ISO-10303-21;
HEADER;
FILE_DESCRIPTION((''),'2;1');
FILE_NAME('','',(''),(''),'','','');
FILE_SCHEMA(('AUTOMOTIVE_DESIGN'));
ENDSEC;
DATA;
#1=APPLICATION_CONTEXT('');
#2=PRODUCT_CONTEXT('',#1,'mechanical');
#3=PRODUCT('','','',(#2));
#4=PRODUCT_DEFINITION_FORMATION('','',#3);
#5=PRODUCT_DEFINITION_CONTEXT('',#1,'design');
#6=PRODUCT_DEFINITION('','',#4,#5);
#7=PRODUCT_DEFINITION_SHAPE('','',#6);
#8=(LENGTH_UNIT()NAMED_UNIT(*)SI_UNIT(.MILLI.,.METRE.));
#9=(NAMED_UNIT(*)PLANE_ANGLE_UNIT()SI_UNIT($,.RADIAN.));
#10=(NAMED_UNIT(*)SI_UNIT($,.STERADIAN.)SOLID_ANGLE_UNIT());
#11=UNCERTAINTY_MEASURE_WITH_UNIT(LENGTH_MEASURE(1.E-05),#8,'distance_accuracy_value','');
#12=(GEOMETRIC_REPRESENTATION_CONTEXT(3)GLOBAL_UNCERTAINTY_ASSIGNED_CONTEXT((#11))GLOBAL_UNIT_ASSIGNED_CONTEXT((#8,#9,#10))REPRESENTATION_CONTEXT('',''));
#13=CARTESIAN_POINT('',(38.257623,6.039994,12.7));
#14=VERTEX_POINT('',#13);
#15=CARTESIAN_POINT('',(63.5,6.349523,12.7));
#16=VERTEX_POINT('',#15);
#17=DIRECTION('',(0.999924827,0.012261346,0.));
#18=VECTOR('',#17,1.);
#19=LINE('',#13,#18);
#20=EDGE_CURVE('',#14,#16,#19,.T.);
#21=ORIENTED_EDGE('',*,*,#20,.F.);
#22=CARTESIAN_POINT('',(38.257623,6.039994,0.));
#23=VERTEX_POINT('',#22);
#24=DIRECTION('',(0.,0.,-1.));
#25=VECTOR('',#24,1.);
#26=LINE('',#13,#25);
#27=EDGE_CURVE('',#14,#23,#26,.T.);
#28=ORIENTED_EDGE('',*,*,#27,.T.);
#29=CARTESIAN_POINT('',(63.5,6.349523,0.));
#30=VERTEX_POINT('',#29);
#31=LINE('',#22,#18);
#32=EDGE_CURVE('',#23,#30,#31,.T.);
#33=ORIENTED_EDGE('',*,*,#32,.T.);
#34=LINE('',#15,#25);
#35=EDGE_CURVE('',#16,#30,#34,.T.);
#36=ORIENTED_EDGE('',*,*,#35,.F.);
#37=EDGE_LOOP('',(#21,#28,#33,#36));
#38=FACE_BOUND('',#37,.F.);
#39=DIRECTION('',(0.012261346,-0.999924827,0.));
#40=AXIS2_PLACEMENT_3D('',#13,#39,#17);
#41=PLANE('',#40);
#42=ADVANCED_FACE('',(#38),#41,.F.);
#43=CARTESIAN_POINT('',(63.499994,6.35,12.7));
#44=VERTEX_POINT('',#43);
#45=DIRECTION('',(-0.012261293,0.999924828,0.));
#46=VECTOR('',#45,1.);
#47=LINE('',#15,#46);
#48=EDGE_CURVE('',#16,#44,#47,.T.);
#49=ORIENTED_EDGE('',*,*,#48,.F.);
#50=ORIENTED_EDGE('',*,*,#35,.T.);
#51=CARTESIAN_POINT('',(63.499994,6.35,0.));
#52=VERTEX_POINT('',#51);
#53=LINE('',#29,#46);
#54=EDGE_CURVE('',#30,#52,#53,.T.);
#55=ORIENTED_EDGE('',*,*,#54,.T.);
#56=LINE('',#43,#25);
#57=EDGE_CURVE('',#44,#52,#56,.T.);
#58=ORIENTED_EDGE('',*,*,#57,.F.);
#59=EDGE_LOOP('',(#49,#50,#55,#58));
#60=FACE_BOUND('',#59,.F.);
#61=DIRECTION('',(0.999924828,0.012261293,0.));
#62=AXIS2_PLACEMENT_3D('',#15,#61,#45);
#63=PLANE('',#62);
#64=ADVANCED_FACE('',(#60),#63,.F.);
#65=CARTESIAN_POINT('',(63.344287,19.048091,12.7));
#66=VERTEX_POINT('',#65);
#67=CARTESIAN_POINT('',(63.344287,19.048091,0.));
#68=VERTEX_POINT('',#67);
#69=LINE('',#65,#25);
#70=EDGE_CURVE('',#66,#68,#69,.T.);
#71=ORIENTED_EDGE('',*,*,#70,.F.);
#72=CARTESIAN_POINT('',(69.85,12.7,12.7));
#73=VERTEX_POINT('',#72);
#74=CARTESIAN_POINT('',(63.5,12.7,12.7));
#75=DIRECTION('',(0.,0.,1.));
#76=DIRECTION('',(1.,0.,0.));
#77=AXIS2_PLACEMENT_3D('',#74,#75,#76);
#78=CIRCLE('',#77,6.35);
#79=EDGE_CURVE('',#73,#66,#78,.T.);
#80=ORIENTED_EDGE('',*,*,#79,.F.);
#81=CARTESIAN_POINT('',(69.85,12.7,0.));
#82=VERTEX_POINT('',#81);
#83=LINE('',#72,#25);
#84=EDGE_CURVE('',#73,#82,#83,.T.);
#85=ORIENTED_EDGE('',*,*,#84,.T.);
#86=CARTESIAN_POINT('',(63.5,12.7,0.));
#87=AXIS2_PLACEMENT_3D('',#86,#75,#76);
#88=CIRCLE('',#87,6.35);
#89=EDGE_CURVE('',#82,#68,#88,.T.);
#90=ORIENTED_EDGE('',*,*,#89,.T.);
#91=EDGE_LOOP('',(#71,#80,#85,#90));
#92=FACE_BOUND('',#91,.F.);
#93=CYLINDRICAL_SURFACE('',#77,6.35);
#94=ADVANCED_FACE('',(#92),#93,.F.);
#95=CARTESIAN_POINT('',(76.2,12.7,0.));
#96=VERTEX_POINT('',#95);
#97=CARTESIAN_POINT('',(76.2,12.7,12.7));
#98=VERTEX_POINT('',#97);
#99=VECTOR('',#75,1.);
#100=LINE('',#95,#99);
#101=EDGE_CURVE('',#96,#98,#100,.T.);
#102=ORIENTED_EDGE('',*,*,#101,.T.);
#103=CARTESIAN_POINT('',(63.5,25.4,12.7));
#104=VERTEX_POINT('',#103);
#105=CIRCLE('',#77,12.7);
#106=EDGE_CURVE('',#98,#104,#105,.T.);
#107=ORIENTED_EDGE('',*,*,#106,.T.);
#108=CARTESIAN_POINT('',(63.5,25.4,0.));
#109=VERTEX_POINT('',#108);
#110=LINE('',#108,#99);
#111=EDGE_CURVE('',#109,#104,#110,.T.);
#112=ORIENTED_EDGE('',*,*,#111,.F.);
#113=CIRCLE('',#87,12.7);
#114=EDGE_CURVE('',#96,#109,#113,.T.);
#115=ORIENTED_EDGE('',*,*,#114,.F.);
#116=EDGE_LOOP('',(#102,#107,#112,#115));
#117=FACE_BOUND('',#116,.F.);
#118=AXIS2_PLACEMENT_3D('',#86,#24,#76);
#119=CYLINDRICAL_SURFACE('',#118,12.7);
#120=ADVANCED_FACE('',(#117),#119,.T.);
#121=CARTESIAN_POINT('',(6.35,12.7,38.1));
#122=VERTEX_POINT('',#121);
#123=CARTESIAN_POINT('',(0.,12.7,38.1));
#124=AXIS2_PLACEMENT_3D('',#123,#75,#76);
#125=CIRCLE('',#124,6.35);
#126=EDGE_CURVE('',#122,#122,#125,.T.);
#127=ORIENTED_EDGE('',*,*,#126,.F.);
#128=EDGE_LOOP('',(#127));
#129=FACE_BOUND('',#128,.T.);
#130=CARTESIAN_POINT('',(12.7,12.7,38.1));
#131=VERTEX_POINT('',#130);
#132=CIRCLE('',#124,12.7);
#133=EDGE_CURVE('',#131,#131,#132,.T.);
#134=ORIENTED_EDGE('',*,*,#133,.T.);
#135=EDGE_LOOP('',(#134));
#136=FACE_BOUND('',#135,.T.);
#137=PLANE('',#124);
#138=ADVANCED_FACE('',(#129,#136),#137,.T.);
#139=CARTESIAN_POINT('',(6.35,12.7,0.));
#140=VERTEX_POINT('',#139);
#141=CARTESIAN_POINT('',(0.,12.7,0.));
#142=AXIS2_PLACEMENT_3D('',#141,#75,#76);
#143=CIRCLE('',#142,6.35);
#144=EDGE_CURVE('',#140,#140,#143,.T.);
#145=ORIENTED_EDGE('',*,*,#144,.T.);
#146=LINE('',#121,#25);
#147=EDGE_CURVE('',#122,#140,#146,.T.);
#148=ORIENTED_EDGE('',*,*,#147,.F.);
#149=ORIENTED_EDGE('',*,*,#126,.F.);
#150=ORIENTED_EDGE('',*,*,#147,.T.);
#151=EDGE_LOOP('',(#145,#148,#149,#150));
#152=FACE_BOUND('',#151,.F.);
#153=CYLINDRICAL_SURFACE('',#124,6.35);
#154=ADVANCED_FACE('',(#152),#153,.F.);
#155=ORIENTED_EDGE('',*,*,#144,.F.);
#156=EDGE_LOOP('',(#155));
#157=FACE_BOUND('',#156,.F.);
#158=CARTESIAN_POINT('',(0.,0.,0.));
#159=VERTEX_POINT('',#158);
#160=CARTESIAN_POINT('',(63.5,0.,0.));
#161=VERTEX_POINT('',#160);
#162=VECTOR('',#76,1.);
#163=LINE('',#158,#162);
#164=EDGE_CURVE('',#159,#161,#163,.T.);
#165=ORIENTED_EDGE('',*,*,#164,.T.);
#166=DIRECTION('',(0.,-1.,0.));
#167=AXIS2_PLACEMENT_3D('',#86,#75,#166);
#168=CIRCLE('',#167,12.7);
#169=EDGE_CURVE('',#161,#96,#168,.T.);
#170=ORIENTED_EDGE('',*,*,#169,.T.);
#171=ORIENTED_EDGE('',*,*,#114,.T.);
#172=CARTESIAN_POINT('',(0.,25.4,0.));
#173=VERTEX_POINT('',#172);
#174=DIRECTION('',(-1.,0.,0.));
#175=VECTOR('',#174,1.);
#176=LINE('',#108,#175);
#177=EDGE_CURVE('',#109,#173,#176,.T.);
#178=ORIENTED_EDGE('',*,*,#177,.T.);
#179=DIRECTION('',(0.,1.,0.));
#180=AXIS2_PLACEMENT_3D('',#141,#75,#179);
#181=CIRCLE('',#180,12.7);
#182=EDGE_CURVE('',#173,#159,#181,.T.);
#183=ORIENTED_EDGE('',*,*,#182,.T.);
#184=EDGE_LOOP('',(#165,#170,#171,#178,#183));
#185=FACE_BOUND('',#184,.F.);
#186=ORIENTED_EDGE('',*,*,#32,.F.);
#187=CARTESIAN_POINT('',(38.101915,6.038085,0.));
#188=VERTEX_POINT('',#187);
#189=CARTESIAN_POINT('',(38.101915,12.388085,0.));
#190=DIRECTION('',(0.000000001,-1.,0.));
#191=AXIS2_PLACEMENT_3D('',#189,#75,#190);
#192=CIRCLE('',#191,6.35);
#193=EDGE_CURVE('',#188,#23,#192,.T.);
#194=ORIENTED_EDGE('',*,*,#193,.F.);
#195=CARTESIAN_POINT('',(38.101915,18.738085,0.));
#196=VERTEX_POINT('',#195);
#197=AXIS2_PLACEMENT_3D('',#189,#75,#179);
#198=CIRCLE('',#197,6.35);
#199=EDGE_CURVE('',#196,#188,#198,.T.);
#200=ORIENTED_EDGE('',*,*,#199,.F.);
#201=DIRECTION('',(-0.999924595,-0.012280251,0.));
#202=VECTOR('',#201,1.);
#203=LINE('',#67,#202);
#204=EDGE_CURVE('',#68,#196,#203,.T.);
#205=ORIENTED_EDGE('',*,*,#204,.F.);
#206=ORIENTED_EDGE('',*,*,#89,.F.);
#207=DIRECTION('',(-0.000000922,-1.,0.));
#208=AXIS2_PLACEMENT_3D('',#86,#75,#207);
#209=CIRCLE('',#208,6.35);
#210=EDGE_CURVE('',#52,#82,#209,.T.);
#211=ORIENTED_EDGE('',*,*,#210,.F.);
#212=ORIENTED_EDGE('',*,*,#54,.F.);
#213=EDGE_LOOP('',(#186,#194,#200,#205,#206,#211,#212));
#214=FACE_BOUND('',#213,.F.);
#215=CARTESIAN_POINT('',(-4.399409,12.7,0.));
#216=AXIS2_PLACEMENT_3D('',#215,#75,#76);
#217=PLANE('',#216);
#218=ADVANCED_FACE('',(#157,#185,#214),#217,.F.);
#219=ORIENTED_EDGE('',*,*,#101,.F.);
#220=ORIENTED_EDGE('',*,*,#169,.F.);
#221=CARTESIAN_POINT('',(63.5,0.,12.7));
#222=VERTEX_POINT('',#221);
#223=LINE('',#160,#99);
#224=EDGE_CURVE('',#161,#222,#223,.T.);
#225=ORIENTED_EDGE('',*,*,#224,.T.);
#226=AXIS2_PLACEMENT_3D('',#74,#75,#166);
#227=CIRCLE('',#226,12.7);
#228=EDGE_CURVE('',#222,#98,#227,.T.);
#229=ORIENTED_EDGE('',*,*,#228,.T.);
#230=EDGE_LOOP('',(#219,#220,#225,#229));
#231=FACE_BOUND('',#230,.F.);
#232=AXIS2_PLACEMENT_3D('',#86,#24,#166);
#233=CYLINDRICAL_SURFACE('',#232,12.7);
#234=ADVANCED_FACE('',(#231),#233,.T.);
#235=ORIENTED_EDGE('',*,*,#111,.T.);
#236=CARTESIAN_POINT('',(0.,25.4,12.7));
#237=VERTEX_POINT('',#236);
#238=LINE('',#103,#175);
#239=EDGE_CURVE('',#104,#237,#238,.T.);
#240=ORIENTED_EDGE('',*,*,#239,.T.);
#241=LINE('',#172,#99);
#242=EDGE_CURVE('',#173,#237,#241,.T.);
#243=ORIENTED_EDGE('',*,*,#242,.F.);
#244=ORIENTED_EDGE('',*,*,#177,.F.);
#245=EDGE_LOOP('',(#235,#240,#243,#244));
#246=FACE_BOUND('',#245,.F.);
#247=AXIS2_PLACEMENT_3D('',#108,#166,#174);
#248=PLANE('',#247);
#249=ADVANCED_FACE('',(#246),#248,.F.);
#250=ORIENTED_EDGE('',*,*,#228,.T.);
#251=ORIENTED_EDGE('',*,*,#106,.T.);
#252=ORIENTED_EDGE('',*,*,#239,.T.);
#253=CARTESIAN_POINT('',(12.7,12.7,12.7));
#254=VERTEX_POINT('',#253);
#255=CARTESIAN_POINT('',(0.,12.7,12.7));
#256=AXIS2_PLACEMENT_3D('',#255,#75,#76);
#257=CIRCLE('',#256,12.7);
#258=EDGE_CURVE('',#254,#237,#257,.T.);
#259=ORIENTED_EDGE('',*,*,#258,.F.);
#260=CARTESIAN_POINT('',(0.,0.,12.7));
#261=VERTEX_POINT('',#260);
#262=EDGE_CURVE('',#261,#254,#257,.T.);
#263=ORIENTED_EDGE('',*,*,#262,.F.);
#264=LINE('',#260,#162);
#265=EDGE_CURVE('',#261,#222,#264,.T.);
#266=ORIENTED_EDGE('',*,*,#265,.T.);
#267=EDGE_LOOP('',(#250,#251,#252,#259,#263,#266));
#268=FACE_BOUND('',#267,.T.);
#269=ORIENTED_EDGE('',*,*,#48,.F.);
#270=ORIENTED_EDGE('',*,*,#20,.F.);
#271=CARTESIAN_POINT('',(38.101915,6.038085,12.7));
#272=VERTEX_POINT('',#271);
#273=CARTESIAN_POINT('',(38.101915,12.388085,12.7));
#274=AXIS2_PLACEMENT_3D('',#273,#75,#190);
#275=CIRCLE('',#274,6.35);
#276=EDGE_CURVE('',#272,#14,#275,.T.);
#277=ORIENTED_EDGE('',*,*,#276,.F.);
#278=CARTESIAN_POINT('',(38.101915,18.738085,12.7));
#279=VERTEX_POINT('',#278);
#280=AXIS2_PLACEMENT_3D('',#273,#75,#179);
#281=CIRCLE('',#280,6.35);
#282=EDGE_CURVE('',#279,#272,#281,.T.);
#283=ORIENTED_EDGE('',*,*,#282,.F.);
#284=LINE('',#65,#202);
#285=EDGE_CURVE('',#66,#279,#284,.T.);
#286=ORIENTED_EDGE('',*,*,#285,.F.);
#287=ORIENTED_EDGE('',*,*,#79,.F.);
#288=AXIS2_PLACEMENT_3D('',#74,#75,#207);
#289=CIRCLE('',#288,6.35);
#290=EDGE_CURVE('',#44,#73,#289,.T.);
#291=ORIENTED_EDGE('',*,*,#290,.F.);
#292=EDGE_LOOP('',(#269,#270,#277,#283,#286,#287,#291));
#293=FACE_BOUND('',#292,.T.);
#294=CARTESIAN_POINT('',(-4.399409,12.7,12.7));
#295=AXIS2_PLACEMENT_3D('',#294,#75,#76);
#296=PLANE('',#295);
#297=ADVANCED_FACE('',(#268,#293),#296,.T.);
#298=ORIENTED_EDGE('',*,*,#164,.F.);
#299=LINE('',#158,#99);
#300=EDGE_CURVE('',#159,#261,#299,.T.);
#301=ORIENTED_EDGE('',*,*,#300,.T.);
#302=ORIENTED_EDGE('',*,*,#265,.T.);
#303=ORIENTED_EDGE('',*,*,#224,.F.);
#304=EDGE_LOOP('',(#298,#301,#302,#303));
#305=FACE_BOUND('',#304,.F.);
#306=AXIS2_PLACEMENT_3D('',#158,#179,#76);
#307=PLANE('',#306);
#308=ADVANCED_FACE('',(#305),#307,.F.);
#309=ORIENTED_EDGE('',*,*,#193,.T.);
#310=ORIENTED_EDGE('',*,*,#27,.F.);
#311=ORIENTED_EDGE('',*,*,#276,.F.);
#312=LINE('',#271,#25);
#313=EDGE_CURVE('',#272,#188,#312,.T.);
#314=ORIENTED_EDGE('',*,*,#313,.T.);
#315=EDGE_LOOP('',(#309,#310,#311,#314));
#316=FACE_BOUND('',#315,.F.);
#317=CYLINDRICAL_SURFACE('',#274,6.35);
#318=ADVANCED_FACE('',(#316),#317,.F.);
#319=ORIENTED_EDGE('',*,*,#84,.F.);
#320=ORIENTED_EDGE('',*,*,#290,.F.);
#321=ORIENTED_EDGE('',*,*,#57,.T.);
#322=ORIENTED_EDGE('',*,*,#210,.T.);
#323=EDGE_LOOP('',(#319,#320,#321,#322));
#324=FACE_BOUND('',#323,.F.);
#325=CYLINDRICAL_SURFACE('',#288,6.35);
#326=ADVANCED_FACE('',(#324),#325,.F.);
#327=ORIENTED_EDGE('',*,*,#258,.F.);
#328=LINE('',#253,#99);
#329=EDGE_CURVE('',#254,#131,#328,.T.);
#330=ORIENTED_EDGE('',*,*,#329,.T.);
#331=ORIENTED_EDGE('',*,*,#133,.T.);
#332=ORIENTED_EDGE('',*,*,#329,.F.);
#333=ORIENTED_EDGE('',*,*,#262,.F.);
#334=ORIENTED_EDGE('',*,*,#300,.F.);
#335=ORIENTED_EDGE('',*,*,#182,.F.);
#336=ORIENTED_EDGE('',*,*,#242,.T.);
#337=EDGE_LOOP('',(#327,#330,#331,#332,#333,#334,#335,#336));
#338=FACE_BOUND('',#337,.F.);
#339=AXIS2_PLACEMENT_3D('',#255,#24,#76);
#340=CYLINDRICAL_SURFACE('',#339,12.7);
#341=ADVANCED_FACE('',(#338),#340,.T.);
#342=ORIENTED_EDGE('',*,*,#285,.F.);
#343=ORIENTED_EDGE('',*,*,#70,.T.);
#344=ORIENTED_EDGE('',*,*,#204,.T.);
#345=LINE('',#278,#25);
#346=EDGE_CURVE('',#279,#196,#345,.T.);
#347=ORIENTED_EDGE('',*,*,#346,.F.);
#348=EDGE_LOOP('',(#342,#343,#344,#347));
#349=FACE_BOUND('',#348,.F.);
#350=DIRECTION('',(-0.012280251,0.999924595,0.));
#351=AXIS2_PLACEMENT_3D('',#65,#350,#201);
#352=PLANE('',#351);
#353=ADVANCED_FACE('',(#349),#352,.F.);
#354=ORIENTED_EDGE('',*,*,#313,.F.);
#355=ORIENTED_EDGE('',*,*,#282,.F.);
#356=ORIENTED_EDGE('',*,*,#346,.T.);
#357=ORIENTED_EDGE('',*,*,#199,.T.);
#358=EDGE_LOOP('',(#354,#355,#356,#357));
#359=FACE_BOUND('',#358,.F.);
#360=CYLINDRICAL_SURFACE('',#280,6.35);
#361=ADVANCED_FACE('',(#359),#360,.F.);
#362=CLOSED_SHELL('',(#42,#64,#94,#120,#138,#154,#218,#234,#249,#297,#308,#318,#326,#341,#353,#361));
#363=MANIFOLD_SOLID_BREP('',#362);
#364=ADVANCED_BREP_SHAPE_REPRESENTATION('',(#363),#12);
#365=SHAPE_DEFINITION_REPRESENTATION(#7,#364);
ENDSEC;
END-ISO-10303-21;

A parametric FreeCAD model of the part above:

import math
import FreeCAD as App
import Part
import Sketcher

V = App.Vector
Q = App.Units.Quantity

doc = App.newDocument("Part")
body = doc.addObject("PartDesign::Body", "Body")

# Sketch on XY plane
sketch1 = body.newObject("Sketcher::SketchObject", "Sketch")
sketch1.AttachmentSupport = (doc.getObject("XY_Plane"), [""])
sketch1.MapMode = "FlatFace"
sketch1.addGeometry(Part.ArcOfCircle(Part.Circle(V(0, 13, 0), V(0, 0, 1), 13), math.radians(90), math.radians(270)), False)
sketch1.addGeometry(Part.LineSegment(V(0, 0, 0), V(64, 0, 0)), False)
sketch1.addGeometry(Part.ArcOfCircle(Part.Circle(V(64, 13, 0), V(0, 0, 1), 13), math.radians(-90), math.radians(0)), False)
sketch1.addGeometry(Part.ArcOfCircle(Part.Circle(V(64, 13, 0), V(0, 0, 1), 13), math.radians(0), math.radians(90)), False)
sketch1.addGeometry(Part.LineSegment(V(64, 25, 0), V(0, 25, 0)), False)
sketch1.addConstraint(Sketcher.Constraint("Tangent", 0, 2, 1, 1))
sketch1.addConstraint(Sketcher.Constraint("Tangent", 1, 2, 2, 1))
sketch1.addConstraint(Sketcher.Constraint("Tangent", 2, 2, 3, 1))
sketch1.addConstraint(Sketcher.Constraint("Tangent", 3, 2, 4, 1))
sketch1.addConstraint(Sketcher.Constraint("Tangent", 4, 2, 0, 1))
sketch1.addConstraint(Sketcher.Constraint("Horizontal", 1))
sketch1.addConstraint(Sketcher.Constraint("Horizontal", 4))
sketch1.addConstraint(Sketcher.Constraint("Coincident", 0, 2, -1, 1))
sketch1.addConstraint(Sketcher.Constraint("Equal", 0, 2))
sketch1.addConstraint(Sketcher.Constraint("Horizontal", 3, 3, 2, 2))
sketch1.addConstraint(Sketcher.Constraint("Radius", 0, Q("0.5 in")))
sketch1.addConstraint(Sketcher.Constraint("DistanceX", 1, 1, 1, 2, Q("2.5 in")))
pad1 = body.newObject("PartDesign::Pad", "Pad")
pad1.Profile = sketch1
pad1.Length = Q("0.5 in")

# Sketch on XY plane
sketch2 = body.newObject("Sketcher::SketchObject", "Sketch001")
sketch2.AttachmentSupport = (doc.getObject("XY_Plane"), [""])
sketch2.MapMode = "FlatFace"
sketch2.AttachmentOffset = App.Placement(V(0, 0, 0.5 * 25.4), App.Rotation())
sketch2.addGeometry(Part.Circle(V(0, 13, 0), V(0, 0, 1), 13), False)
sketch2.addConstraint(Sketcher.Constraint("PointOnObject", 0, 3, -2))
sketch2.addConstraint(Sketcher.Constraint("Diameter", 0, Q("1 in")))
sketch2.addConstraint(Sketcher.Constraint("DistanceY", -1, 1, 0, 3, Q("0.5 in")))
pad2 = body.newObject("PartDesign::Pad", "Pad001")
pad2.Profile = sketch2
pad2.Length = Q("1 in")

# Sketch on XY plane
sketch3 = body.newObject("Sketcher::SketchObject", "Sketch002")
sketch3.AttachmentSupport = (doc.getObject("XY_Plane"), [""])
sketch3.MapMode = "FlatFace"
sketch3.AttachmentOffset = App.Placement(V(0, 0, 1.5 * 25.4), App.Rotation())
sketch3.addGeometry(Part.Circle(V(0, 13, 0), V(0, 0, 1), 6), False)
sketch3.addConstraint(Sketcher.Constraint("PointOnObject", 0, 3, -2))
sketch3.addConstraint(Sketcher.Constraint("Diameter", 0, Q("0.5 in")))
sketch3.addConstraint(Sketcher.Constraint("DistanceY", -1, 1, 0, 3, Q("0.5 in")))
pocket1 = body.newObject("PartDesign::Pocket", "Pocket")
pocket1.Profile = sketch3
pocket1.Length = Q("1.5 in")

# Sketch on XY plane
sketch4 = body.newObject("Sketcher::SketchObject", "Sketch003")
sketch4.AttachmentSupport = (doc.getObject("XY_Plane"), [""])
sketch4.MapMode = "FlatFace"
sketch4.AttachmentOffset = App.Placement(V(0, 0, 0.5 * 25.4), App.Rotation())
sketch4.addGeometry(Part.LineSegment(V(38.257623, 6.039994, 0), V(63.5, 6.349523, 0)), False)
sketch4.addGeometry(Part.LineSegment(V(63.5, 6.349523, 0), V(63.499994, 6.35, 0)), False)
sketch4.addGeometry(Part.ArcOfCircle(Part.Circle(V(63.5, 12.7, 0), V(0, 0, 1), 6.35), math.radians(-90.000053), math.radians(0)), False)
sketch4.addGeometry(Part.ArcOfCircle(Part.Circle(V(63.5, 12.7, 0), V(0, 0, 1), 6.35), math.radians(0), math.radians(91.405135)), False)
sketch4.addGeometry(Part.LineSegment(V(63.344287, 19.048091, 0), V(38.101915, 18.738085, 0)), False)
sketch4.addGeometry(Part.ArcOfCircle(Part.Circle(V(38.101915, 12.388085, 0), V(0, 0, 1), 6.35), math.radians(90), math.radians(270)), False)
sketch4.addGeometry(Part.ArcOfCircle(Part.Circle(V(38.101915, 12.388085, 0), V(0, 0, 1), 6.35), math.radians(-90), math.radians(-88.594918)), False)
sketch4.addConstraint(Sketcher.Constraint("Coincident", 0, 2, 1, 1))
sketch4.addConstraint(Sketcher.Constraint("Coincident", 1, 2, 2, 1))
sketch4.addConstraint(Sketcher.Constraint("Coincident", 2, 2, 3, 1))
sketch4.addConstraint(Sketcher.Constraint("Coincident", 3, 2, 4, 1))
sketch4.addConstraint(Sketcher.Constraint("Coincident", 4, 2, 5, 1))
sketch4.addConstraint(Sketcher.Constraint("Coincident", 5, 2, 6, 1))
sketch4.addConstraint(Sketcher.Constraint("Coincident", 6, 2, 0, 1))
sketch4.addConstraint(Sketcher.Constraint("Coincident", 3, 3, 2, 3))
sketch4.addConstraint(Sketcher.Constraint("Coincident", 6, 3, 5, 3))
sketch4.addConstraint(Sketcher.Constraint("Radius", 2, Q("0.25 in")))
sketch4.addConstraint(Sketcher.Constraint("Radius", 5, Q("0.25 in")))
sketch4.addConstraint(Sketcher.Constraint("DistanceX", -1, 1, 2, 3, Q("2.5 in")))
sketch4.addConstraint(Sketcher.Constraint("DistanceY", -1, 1, 2, 3, Q("0.5 in")))
sketch4.addConstraint(Sketcher.Constraint("DistanceX", -1, 1, 0, 2, Q("2.5 in")))
sketch4.addConstraint(Sketcher.Constraint("DistanceY", -1, 1, 2, 2, Q("0.5 in")))
sketch4.addConstraint(Sketcher.Constraint("DistanceY", -1, 1, 3, 2, Q("19.048091 mm")))
sketch4.addConstraint(Sketcher.Constraint("DistanceY", 0, 2, 5, 3, Q("6.038562 mm")))
sketch4.addConstraint(Sketcher.Constraint("DistanceX", 5, 3, 1, 2, Q("25.398079 mm")))
sketch4.addConstraint(Sketcher.Constraint("DistanceX", 4, 2, 3, 2, Q("25.242372 mm")))
sketch4.addConstraint(Sketcher.Constraint("DistanceX", 5, 2, 1, 2, Q("25.398079 mm")))
sketch4.addConstraint(Sketcher.Constraint("DistanceY", 5, 2, 6, 2, Q("0.001909 mm")))
sketch4.addConstraint(Sketcher.Constraint("Distance", 0, Q("25.244275 mm")))
sketch4.addConstraint(Sketcher.Constraint("Distance", 1, Q("0.000477 mm")))
pocket2 = body.newObject("PartDesign::Pocket", "Pocket001")
pocket2.Profile = sketch4
pocket2.Length = Q("0.5 in")

doc.recompute()
